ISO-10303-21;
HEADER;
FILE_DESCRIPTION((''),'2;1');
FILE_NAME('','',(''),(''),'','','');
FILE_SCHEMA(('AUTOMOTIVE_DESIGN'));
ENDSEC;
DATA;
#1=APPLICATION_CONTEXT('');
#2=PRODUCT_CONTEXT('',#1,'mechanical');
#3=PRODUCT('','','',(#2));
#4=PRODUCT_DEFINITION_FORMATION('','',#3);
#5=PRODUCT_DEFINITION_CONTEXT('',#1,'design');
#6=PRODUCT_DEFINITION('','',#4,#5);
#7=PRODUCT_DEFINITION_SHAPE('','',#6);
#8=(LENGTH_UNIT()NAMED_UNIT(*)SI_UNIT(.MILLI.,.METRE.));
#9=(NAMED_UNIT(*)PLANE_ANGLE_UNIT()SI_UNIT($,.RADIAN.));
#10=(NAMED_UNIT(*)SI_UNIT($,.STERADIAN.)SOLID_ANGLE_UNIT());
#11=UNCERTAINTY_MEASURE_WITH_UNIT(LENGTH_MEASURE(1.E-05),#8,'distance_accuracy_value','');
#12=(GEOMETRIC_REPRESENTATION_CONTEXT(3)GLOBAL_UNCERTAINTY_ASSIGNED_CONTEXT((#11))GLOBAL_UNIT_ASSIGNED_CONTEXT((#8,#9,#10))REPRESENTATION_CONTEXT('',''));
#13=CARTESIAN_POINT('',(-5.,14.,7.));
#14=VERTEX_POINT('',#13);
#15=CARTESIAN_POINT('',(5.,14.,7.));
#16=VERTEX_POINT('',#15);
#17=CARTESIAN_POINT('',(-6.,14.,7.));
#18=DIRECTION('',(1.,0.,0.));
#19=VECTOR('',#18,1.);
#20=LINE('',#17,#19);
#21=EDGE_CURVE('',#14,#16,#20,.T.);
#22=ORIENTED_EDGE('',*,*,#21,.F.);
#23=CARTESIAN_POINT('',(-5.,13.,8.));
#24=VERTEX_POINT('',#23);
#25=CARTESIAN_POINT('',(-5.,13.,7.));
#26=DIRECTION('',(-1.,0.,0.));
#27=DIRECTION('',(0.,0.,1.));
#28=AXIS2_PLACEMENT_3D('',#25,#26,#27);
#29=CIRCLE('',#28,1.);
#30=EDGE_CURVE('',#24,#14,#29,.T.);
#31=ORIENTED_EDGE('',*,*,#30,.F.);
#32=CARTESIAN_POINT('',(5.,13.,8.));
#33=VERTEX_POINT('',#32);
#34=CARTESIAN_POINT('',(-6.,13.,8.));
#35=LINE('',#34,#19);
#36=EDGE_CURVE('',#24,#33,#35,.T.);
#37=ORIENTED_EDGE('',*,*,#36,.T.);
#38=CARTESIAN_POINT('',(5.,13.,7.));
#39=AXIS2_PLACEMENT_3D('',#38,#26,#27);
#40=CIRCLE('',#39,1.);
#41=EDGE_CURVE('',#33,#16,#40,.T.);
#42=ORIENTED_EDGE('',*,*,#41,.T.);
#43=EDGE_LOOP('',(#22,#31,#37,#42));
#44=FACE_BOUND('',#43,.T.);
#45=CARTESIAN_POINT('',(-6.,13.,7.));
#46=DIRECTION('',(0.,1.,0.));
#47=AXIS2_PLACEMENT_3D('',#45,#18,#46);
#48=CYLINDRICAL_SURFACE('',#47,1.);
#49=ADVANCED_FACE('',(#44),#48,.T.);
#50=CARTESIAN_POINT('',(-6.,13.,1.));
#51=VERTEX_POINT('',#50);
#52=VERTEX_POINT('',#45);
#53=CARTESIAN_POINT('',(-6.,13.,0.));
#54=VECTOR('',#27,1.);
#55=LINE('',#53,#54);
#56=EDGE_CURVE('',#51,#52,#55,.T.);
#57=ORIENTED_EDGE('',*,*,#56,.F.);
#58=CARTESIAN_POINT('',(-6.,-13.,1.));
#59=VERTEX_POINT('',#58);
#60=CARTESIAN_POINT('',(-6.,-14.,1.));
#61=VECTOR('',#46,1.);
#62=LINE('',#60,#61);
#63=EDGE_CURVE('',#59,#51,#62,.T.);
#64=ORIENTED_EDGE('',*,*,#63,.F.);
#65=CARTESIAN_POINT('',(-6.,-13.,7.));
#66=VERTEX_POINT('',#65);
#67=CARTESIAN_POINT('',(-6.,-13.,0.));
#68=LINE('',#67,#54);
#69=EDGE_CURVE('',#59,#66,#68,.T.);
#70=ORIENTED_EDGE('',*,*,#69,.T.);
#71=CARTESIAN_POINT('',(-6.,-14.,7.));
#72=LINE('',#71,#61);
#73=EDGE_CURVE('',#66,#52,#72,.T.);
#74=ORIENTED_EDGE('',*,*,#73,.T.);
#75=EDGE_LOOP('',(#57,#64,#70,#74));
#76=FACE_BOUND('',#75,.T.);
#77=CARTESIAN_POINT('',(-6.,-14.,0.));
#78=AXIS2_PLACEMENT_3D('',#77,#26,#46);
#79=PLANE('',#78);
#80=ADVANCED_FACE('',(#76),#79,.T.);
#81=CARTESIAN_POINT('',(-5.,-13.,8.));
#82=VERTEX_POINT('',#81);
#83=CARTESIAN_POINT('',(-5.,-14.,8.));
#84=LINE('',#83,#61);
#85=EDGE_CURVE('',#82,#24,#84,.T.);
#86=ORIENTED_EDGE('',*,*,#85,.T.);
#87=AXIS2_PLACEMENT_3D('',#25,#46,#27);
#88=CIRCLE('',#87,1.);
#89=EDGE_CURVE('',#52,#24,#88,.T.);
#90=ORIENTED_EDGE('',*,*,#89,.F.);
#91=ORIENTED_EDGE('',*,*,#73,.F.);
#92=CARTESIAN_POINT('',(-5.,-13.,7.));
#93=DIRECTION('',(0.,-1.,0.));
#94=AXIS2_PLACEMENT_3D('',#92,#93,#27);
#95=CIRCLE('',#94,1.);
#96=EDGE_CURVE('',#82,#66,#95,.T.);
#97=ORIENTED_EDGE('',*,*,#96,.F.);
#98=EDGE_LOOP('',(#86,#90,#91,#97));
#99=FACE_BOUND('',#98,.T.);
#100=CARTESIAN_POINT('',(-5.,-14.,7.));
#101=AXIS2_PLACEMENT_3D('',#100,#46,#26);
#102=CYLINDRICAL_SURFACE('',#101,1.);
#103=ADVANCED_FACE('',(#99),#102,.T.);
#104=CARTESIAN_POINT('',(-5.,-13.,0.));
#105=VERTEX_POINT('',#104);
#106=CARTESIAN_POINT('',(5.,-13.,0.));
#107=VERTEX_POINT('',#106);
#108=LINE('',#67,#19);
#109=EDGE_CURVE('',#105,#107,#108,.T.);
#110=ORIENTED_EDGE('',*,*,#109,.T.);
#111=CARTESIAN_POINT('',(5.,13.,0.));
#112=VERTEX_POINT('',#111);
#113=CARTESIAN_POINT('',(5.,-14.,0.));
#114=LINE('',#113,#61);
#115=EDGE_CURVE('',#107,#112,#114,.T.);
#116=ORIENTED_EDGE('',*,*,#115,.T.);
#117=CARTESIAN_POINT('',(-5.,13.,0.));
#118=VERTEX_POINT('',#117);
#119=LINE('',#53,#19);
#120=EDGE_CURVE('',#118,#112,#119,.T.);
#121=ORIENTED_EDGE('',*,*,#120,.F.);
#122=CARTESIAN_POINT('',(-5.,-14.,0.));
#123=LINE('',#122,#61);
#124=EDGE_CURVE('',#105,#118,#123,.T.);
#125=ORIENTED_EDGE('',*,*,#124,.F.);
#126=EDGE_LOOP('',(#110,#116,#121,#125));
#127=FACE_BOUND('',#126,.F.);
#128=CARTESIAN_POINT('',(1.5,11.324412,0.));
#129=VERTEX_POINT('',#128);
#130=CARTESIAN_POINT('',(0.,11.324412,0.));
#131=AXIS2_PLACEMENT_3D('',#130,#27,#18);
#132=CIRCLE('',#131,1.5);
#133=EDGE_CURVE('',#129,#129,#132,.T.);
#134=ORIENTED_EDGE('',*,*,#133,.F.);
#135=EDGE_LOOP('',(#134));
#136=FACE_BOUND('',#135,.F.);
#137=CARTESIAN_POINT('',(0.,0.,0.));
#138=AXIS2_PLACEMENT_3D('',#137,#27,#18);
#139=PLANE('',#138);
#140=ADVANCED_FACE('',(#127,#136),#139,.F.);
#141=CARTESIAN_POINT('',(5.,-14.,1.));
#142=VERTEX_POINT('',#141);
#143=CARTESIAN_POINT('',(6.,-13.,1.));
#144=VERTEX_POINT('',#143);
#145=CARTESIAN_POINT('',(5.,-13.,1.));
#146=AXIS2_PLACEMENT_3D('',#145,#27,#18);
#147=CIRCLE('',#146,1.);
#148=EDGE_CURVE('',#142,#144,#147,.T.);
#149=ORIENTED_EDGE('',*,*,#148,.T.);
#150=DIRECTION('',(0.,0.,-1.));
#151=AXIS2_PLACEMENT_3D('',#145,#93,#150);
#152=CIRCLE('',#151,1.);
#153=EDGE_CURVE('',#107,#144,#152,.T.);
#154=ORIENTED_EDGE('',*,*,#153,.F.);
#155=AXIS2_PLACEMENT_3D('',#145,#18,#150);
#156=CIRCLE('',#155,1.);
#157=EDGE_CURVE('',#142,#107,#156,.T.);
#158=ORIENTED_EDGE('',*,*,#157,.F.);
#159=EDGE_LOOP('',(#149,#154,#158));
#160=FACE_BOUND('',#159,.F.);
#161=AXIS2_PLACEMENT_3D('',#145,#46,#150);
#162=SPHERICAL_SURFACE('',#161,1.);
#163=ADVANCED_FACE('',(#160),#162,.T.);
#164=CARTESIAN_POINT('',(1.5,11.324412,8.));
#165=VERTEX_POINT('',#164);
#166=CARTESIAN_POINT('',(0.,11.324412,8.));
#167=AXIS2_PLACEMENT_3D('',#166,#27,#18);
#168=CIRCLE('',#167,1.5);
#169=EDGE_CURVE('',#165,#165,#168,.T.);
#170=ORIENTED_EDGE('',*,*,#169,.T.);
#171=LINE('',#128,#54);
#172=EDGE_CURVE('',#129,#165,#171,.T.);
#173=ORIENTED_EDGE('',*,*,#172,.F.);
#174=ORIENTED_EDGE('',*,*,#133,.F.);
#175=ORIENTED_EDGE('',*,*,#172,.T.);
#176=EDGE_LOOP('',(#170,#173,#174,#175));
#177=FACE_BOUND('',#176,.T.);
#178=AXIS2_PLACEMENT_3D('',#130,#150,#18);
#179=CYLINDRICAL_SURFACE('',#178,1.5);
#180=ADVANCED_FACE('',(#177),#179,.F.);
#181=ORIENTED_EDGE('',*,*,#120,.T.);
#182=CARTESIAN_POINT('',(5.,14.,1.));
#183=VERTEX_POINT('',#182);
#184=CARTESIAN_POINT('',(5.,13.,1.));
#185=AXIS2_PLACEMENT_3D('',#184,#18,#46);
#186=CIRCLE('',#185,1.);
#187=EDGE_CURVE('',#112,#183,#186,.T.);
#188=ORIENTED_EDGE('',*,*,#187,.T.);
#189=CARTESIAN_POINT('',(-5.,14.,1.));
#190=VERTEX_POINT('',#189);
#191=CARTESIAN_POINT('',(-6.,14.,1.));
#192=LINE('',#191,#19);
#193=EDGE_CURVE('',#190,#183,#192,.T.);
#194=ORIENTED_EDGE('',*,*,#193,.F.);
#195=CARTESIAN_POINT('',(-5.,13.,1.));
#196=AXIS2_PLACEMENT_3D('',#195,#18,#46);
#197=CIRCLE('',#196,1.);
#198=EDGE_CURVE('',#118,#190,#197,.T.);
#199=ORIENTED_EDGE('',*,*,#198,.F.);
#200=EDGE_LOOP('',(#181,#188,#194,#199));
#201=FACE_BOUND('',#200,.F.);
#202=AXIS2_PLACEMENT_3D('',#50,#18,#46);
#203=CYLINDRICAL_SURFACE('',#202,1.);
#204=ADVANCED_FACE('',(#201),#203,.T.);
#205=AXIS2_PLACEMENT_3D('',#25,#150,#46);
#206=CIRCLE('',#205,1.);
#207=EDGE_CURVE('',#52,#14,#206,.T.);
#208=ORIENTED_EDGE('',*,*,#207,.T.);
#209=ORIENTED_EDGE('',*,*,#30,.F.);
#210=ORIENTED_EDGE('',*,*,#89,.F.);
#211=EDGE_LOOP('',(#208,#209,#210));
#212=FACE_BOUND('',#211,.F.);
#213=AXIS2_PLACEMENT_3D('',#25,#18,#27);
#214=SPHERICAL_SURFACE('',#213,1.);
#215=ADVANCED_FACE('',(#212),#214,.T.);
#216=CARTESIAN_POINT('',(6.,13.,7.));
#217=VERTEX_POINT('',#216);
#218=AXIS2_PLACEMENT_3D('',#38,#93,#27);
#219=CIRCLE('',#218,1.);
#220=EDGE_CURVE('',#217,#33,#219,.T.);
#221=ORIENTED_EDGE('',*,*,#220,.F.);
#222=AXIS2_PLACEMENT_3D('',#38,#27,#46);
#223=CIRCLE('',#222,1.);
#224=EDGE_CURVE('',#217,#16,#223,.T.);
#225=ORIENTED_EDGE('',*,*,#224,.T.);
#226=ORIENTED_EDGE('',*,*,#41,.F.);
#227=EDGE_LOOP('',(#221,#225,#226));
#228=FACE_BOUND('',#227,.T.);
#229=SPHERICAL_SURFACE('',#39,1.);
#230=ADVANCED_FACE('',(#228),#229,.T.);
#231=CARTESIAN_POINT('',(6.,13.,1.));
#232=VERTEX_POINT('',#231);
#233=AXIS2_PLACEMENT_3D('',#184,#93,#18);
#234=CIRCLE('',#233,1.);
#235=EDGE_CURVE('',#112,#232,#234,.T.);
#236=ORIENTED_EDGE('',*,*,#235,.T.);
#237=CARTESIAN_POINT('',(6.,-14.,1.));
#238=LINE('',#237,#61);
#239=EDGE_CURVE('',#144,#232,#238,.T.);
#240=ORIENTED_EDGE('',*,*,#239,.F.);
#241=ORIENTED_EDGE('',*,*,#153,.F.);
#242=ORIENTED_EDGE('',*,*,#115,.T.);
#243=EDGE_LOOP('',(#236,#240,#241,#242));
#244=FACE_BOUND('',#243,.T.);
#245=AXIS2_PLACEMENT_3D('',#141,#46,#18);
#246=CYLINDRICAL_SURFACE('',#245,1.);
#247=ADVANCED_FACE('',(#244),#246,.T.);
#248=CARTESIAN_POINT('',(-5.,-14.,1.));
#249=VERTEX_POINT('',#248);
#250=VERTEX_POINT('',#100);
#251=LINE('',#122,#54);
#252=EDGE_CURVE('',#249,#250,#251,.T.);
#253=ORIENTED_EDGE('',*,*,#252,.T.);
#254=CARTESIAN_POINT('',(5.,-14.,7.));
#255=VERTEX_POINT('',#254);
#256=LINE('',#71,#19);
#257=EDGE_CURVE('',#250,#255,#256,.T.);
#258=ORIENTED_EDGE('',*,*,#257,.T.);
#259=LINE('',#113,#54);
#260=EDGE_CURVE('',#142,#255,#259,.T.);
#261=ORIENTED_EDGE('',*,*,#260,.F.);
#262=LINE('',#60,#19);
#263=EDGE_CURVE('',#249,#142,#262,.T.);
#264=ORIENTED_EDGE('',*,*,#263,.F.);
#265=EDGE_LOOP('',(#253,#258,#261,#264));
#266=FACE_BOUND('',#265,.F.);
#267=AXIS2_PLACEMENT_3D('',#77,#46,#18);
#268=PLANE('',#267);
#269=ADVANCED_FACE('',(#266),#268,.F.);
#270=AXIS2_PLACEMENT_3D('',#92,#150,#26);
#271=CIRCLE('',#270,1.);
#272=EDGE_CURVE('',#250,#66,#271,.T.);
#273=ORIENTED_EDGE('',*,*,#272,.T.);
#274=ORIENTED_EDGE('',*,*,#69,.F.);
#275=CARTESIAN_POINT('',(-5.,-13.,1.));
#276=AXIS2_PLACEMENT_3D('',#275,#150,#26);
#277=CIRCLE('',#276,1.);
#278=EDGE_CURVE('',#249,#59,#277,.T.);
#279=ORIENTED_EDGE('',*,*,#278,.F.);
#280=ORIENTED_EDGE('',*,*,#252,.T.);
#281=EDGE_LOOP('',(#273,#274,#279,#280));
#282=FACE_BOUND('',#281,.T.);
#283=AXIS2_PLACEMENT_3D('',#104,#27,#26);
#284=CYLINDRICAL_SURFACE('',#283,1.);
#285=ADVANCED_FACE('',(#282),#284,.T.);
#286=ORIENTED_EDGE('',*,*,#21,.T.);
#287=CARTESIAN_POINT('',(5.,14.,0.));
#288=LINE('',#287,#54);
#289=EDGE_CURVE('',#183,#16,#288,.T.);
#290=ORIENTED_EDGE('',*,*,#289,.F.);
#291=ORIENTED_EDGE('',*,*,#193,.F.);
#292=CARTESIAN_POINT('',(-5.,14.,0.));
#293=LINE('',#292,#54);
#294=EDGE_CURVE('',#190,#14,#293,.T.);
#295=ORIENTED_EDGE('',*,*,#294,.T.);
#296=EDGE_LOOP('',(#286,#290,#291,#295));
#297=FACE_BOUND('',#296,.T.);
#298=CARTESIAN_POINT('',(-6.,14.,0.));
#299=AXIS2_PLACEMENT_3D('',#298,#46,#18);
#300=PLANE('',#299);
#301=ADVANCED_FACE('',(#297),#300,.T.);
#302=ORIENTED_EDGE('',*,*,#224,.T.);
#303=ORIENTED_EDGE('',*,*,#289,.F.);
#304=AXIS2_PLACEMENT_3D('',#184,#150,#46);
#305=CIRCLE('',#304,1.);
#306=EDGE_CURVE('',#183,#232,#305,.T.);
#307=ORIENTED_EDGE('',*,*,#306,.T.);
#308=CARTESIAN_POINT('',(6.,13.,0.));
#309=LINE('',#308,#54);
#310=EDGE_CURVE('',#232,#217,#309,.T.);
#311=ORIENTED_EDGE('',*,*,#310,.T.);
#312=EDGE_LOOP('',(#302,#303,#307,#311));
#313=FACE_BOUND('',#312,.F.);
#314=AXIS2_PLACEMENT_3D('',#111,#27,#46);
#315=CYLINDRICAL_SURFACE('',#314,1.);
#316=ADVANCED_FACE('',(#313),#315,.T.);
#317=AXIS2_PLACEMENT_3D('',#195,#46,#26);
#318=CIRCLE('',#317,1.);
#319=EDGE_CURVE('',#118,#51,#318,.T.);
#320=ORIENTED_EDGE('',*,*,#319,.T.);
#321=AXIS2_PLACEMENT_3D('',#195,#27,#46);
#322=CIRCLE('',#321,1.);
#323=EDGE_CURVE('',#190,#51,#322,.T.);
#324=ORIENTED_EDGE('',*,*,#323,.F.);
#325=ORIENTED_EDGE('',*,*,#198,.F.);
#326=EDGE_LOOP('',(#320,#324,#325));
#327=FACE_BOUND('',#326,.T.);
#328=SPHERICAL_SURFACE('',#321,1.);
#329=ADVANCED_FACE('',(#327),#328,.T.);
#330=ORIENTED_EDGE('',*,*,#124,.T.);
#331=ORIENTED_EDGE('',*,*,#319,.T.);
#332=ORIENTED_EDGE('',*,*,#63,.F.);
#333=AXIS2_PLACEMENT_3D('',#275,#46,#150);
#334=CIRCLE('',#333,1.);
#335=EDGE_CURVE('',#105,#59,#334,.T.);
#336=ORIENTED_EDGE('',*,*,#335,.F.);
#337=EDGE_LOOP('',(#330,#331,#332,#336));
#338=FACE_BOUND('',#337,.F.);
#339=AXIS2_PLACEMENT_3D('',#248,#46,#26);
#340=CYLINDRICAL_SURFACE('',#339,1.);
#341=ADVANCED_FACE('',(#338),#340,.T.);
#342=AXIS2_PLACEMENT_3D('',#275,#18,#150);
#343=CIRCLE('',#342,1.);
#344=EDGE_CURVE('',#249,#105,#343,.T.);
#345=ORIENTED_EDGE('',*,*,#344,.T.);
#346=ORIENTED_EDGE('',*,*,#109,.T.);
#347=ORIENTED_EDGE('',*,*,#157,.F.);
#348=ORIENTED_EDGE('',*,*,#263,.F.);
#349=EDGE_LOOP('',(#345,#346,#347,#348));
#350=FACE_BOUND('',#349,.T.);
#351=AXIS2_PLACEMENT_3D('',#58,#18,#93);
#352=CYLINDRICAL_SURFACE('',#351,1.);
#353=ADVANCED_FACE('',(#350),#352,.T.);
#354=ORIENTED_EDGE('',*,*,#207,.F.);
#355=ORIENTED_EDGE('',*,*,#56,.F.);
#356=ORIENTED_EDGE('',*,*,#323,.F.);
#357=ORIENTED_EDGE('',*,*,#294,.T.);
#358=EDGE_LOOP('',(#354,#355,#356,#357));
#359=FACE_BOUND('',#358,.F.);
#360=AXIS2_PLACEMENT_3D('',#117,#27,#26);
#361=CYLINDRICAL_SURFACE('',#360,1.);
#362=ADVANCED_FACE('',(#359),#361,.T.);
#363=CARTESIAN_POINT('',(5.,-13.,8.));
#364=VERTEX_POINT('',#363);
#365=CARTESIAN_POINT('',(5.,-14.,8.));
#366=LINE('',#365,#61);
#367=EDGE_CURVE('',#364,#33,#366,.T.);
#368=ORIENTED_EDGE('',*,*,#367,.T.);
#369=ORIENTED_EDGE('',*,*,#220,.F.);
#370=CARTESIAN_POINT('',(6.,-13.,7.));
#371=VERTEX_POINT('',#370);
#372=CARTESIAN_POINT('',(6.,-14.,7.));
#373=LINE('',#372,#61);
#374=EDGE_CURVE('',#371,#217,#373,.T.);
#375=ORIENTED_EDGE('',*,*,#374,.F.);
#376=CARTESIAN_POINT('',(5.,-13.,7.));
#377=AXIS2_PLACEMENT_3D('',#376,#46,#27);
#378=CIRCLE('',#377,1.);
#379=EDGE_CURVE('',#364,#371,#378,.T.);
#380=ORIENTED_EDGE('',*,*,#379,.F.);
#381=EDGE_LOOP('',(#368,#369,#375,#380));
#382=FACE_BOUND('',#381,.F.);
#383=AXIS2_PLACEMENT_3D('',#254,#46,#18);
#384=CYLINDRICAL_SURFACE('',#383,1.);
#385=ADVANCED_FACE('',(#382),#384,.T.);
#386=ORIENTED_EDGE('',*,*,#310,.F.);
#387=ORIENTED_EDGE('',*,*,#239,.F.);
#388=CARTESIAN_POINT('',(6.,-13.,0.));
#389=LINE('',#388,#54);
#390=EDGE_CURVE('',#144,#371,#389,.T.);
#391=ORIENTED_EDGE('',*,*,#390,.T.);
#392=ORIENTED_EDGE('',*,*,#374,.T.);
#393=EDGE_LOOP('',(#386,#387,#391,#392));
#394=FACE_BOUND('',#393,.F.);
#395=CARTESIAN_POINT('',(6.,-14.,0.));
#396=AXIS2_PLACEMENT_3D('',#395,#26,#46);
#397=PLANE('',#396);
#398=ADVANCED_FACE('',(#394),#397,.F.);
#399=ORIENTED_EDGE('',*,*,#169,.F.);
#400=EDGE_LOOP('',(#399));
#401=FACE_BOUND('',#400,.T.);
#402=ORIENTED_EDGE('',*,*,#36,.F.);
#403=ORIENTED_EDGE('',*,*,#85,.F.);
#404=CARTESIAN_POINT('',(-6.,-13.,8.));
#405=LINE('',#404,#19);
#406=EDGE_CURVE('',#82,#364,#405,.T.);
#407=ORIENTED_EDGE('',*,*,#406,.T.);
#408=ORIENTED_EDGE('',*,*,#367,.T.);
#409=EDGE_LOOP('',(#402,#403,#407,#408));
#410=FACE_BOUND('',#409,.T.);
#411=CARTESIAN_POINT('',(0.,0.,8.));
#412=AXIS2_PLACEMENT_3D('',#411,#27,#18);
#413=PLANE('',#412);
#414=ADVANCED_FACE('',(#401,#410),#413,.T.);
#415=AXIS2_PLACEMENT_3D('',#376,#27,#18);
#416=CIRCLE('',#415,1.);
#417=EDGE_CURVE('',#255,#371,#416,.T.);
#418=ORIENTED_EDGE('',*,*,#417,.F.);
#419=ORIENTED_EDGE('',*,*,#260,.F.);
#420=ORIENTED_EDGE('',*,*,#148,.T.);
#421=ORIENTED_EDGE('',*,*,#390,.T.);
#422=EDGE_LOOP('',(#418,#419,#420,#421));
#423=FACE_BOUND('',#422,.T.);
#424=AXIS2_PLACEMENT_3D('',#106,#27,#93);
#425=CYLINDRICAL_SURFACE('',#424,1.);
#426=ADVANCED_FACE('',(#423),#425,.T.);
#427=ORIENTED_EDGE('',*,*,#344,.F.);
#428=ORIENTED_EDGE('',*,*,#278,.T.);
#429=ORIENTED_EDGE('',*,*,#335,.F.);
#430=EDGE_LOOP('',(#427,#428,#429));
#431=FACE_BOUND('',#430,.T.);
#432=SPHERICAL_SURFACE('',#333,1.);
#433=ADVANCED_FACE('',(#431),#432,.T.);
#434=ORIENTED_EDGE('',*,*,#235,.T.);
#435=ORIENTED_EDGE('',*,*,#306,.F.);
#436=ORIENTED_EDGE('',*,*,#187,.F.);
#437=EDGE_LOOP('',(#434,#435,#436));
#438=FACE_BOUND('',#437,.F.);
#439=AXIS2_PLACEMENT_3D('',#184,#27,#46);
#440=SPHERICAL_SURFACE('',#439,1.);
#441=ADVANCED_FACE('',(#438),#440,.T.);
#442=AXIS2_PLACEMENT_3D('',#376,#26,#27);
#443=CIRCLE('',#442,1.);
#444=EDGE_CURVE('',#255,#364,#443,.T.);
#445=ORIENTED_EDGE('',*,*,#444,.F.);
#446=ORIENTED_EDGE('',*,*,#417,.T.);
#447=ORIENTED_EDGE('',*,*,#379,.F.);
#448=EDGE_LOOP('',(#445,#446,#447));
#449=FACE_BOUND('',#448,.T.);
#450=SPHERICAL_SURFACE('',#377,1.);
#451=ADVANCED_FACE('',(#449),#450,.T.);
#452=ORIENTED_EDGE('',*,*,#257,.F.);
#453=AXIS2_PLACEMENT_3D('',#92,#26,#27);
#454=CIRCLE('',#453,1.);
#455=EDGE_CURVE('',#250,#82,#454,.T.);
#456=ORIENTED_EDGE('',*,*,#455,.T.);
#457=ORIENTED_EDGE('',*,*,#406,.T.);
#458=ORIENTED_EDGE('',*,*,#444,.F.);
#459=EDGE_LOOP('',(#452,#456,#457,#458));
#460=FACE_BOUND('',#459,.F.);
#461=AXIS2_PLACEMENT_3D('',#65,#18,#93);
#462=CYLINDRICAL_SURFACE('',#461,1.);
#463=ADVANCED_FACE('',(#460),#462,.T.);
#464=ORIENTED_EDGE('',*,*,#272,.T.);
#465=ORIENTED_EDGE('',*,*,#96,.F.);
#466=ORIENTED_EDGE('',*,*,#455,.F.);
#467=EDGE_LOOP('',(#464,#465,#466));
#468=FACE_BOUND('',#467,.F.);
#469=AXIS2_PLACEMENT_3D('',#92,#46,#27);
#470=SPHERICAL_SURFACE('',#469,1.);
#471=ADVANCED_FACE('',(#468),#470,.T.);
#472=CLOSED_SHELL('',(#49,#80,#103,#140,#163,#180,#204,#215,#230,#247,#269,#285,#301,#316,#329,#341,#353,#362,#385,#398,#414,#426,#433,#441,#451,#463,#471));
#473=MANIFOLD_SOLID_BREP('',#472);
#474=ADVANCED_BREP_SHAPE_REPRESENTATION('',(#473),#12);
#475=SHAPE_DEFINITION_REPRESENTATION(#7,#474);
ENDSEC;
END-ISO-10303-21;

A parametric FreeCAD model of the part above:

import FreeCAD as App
import Part
import Sketcher

V = App.Vector
Q = App.Units.Quantity


def edges_at(feature, points):
    """Names of the edges that pass closest to the given points."""
    edges = feature.Shape.Edges
    near = lambda p: min(range(len(edges)), key=lambda i: edges[i].distToShape(Part.Vertex(*p))[0])
    return sorted({f"Edge{near(p) + 1}" for p in points})


def add_polygon(sketch, points):
    """Adds a closed chain of lines whose ends are joined by coincident constraints."""
    first, n = sketch.GeometryCount, len(points)
    for a, b in zip(points, points[1:] + points[:1]):
        sketch.addGeometry(Part.LineSegment(App.Vector(*a, 0), App.Vector(*b, 0)), False)
    for i in range(n):
        sketch.addConstraint(Sketcher.Constraint("Coincident", first + i, 2, first + (i + 1) % n, 1))

doc = App.newDocument("Part")
body = doc.addObject("PartDesign::Body", "Body")

# Sketch on XY plane
sketch1 = doc.addObject("Sketcher::SketchObject", "Sketch")
body.addObject(sketch1)
sketch1.AttachmentSupport = (doc.XY_Plane, [""])
sketch1.MapMode = "FlatFace"
add_polygon(sketch1, [(-6, 14), (-6, -14), (6, -14), (6, 14)])  # lines 0-3
sketch1.addGeometry(Part.Circle(V(0, 11.3, 0), V(0, 0, 1), 1.5), False)  # 4
sketch1.addConstraint(Sketcher.Constraint("Vertical", 0))
sketch1.addConstraint(Sketcher.Constraint("Horizontal", 1))
sketch1.addConstraint(Sketcher.Constraint("Vertical", 2))
sketch1.addConstraint(Sketcher.Constraint("Horizontal", 3))
sketch1.addConstraint(Sketcher.Constraint("Symmetric", 0, 2, 2, 2, -1, 1))
sketch1.addConstraint(Sketcher.Constraint("PointOnObject", 4, 3, -2))
sketch1.addConstraint(Sketcher.Constraint("Diameter", 4, Q("3 mm")))
sketch1.addConstraint(Sketcher.Constraint("DistanceX", 1, 1, 1, 2, Q("12 mm")))
sketch1.addConstraint(Sketcher.Constraint("DistanceY", 0, 2, 0, 1, Q("28 mm")))
sketch1.addConstraint(Sketcher.Constraint("DistanceY", -1, 1, 4, 3, Q("11.324412 mm")))
pad1 = doc.addObject("PartDesign::Pad", "Pad")
body.addObject(pad1)
pad1.Profile = sketch1
pad1.Length = 8
doc.recompute()

fillet = doc.addObject("PartDesign::Fillet", "Fillet")
body.addObject(fillet)
fillet.Base = (pad1, edges_at(pad1, [
    (0, 14, 8),
    (6, 0, 8),
    (-6, 0, 8),
    (0, -14, 8),
    (6, 14, 4),
    (-6, 14, 4),
    (0, 14, 0),
    (6, 0, 0),
    (-6, 0, 0),
    (0, -14, 0),
    (6, -14, 4),
    (-6, -14, 4),
]))
fillet.Radius = 1

doc.recompute()
